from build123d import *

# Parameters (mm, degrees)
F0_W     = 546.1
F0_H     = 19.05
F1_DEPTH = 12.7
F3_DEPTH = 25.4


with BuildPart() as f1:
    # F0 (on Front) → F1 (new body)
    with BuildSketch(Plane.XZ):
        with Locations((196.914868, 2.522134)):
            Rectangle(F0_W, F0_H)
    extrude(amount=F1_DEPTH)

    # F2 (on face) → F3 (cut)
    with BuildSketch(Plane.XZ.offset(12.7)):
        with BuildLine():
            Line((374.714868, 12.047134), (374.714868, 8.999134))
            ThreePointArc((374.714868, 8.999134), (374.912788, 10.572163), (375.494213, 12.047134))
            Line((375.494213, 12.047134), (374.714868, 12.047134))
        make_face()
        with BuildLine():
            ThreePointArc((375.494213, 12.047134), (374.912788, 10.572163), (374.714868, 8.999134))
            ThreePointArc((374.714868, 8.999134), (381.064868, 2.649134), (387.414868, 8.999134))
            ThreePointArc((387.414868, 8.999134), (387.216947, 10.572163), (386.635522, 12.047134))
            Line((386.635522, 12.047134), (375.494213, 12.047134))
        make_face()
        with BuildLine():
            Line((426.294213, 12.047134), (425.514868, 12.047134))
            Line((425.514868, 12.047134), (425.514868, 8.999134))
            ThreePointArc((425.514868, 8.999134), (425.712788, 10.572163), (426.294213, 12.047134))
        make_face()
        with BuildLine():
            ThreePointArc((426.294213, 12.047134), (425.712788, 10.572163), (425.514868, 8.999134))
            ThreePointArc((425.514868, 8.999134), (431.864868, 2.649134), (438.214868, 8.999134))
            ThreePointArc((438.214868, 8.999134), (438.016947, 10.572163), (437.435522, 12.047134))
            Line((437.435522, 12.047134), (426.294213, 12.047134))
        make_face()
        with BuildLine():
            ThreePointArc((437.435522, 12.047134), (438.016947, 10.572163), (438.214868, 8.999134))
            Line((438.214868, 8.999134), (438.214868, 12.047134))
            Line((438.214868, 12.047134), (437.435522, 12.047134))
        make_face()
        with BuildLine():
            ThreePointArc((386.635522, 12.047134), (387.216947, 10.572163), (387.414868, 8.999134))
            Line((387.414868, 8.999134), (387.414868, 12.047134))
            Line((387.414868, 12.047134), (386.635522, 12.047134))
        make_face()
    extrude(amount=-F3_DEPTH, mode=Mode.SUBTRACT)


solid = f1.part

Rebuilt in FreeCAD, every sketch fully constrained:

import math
import FreeCAD as App
import Part
import Sketcher

V = App.Vector
Q = App.Units.Quantity


def add_polygon(sketch, points):
    """Adds a closed chain of lines whose ends are joined by coincident constraints."""
    first, n = sketch.GeometryCount, len(points)
    for a, b in zip(points, points[1:] + points[:1]):
        sketch.addGeometry(Part.LineSegment(App.Vector(*a, 0), App.Vector(*b, 0)), False)
    for i in range(n):
        sketch.addConstraint(Sketcher.Constraint("Coincident", first + i, 2, first + (i + 1) % n, 1))

doc = App.newDocument("Part")
params = doc.addObject("Spreadsheet::Sheet", "Params")
for row, (alias, value) in enumerate([
    ("sketch1_width", "21.5 in"),
    ("sketch1_height", "0.75 in"),
    ("pad1_length", "0.5 in"),
    ("sketch2_radius", "0.25 in"),
    ("sketch2_height", "0.12 in"),
    ("pocket1_length", "1 in"),
], start=1):
    params.set(f"A{row}", alias)
    params.set(f"B{row}", "=" + value)
    params.setAlias(f"B{row}", alias)

body = doc.addObject("PartDesign::Body", "Body")

# Sketch on XZ plane
sketch1 = body.newObject("Sketcher::SketchObject", "Sketch")
sketch1.AttachmentSupport = (doc.getObject("XZ_Plane"), [""])
sketch1.MapMode = "FlatFace"
add_polygon(sketch1, [(-76, 12), (-76, -7), (470, -7), (470, 12)])  # lines 0-3
sketch1.addConstraint(Sketcher.Constraint("Vertical", 0))
sketch1.addConstraint(Sketcher.Constraint("Horizontal", 1))
sketch1.addConstraint(Sketcher.Constraint("Vertical", 2))
sketch1.addConstraint(Sketcher.Constraint("Horizontal", 3))
sketch1.addConstraint(Sketcher.Constraint("DistanceX", 1, 1, 1, 2, Q("21.5 in")))
sketch1.addConstraint(Sketcher.Constraint("DistanceY", 0, 2, 0, 1, Q("0.75 in")))
sketch1.addConstraint(Sketcher.Constraint("DistanceX", 0, 2, -1, 1, 76.135132))
sketch1.addConstraint(Sketcher.Constraint("DistanceY", 0, 2, -1, 1, 7.002866))
sketch1.setExpression("Constraints[8]", "Params.sketch1_width")
sketch1.setExpression("Constraints[9]", "Params.sketch1_height")
pad1 = body.newObject("PartDesign::Pad", "Pad")
pad1.Profile = sketch1
pad1.setExpression("Length", "Params.pad1_length")

# Sketch on XZ plane
sketch2 = body.newObject("Sketcher::SketchObject", "Sketch001")
sketch2.AttachmentSupport = (doc.getObject("XZ_Plane"), [""])
sketch2.MapMode = "FlatFace"
sketch2.AttachmentOffset = App.Placement(V(0, 0, 0.5 * 25.4), App.Rotation())
sketch2.addGeometry(Part.LineSegment(V(374.7, 12, 0), V(374.7, 9, 0)), False)
sketch2.addGeometry(Part.ArcOfCircle(Part.Circle(V(381.1, 9, 0), V(0, 0, 1), 6.3), math.radians(180), math.radians(360)), False)
sketch2.addGeometry(Part.LineSegment(V(387.4, 9, 0), V(387.4, 12, 0)), False)
sketch2.addGeometry(Part.LineSegment(V(387.4, 12, 0), V(374.7, 12, 0)), False)
sketch2.addGeometry(Part.LineSegment(V(425.5, 12, 0), V(425.5, 9, 0)), False)
sketch2.addGeometry(Part.ArcOfCircle(Part.Circle(V(431.9, 9, 0), V(0, 0, 1), 6.3), math.radians(180), math.radians(360)), False)
sketch2.addGeometry(Part.LineSegment(V(438.2, 9, 0), V(438.2, 12, 0)), False)
sketch2.addGeometry(Part.LineSegment(V(438.2, 12, 0), V(425.5, 12, 0)), False)
sketch2.addConstraint(Sketcher.Constraint("Tangent", 0, 2, 1, 1))
sketch2.addConstraint(Sketcher.Constraint("Tangent", 1, 2, 2, 1))
sketch2.addConstraint(Sketcher.Constraint("Coincident", 2, 2, 3, 1))
sketch2.addConstraint(Sketcher.Constraint("Coincident", 3, 2, 0, 1))
sketch2.addConstraint(Sketcher.Constraint("Tangent", 4, 2, 5, 1))
sketch2.addConstraint(Sketcher.Constraint("Tangent", 5, 2, 6, 1))
sketch2.addConstraint(Sketcher.Constraint("Coincident", 6, 2, 7, 1))
sketch2.addConstraint(Sketcher.Constraint("Coincident", 7, 2, 4, 1))
sketch2.addConstraint(Sketcher.Constraint("Vertical", 0))
sketch2.addConstraint(Sketcher.Constraint("Vertical", 2))
sketch2.addConstraint(Sketcher.Constraint("Horizontal", 3))
sketch2.addConstraint(Sketcher.Constraint("Vertical", 4))
sketch2.addConstraint(Sketcher.Constraint("Vertical", 6))
sketch2.addConstraint(Sketcher.Constraint("Horizontal", 7))
sketch2.addConstraint(Sketcher.Constraint("Equal", 1, 5))
sketch2.addConstraint(Sketcher.Constraint("Horizontal", 1, 3, 5, 3))
sketch2.addConstraint(Sketcher.Constraint("Horizontal", 3, 2, 6, 2))
sketch2.addConstraint(Sketcher.Constraint("Radius", 1, Q("0.25 in")))
sketch2.addConstraint(Sketcher.Constraint("DistanceX", 1, 3, 5, 3, Q("2 in")))
sketch2.addConstraint(Sketcher.Constraint("DistanceY", 0, 2, 0, 1, Q("0.12 in")))
sketch2.addConstraint(Sketcher.Constraint("DistanceX", -1, 1, 1, 3, 381.064868))
sketch2.addConstraint(Sketcher.Constraint("DistanceY", -1, 1, 1, 3, 8.999134))
sketch2.setExpression("Constraints[17]", "Params.sketch2_radius")
sketch2.setExpression("Constraints[19]", "Params.sketch2_height")
pocket1 = body.newObject("PartDesign::Pocket", "Pocket")
pocket1.Profile = sketch2
pocket1.setExpression("Length", "Params.pocket1_length")

doc.recompute()
